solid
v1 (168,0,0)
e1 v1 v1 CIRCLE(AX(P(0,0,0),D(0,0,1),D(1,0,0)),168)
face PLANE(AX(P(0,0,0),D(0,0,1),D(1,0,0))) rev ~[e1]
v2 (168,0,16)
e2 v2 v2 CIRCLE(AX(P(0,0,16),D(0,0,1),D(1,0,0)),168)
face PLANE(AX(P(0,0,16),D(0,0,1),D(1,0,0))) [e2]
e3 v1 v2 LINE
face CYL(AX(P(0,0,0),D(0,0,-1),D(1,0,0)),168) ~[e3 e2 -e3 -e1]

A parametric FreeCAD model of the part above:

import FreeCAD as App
import Part
import Sketcher

V = App.Vector
Q = App.Units.Quantity

doc = App.newDocument("Part")
body = doc.addObject("PartDesign::Body", "Body")

# Sketch on XY plane
sketch1 = body.newObject("Sketcher::SketchObject", "Sketch")
sketch1.AttachmentSupport = (doc.getObject("XY_Plane"), [""])
sketch1.MapMode = "FlatFace"
sketch1.addGeometry(Part.Circle(V(0, 0, 0), V(0, 0, 1), 168), False)
sketch1.addConstraint(Sketcher.Constraint("Coincident", 0, 3, -1, 1))
sketch1.addConstraint(Sketcher.Constraint("Diameter", 0, Q("336 mm")))
pad1 = body.newObject("PartDesign::Pad", "Pad")
pad1.Profile = sketch1
pad1.Length = 16

doc.recompute()
